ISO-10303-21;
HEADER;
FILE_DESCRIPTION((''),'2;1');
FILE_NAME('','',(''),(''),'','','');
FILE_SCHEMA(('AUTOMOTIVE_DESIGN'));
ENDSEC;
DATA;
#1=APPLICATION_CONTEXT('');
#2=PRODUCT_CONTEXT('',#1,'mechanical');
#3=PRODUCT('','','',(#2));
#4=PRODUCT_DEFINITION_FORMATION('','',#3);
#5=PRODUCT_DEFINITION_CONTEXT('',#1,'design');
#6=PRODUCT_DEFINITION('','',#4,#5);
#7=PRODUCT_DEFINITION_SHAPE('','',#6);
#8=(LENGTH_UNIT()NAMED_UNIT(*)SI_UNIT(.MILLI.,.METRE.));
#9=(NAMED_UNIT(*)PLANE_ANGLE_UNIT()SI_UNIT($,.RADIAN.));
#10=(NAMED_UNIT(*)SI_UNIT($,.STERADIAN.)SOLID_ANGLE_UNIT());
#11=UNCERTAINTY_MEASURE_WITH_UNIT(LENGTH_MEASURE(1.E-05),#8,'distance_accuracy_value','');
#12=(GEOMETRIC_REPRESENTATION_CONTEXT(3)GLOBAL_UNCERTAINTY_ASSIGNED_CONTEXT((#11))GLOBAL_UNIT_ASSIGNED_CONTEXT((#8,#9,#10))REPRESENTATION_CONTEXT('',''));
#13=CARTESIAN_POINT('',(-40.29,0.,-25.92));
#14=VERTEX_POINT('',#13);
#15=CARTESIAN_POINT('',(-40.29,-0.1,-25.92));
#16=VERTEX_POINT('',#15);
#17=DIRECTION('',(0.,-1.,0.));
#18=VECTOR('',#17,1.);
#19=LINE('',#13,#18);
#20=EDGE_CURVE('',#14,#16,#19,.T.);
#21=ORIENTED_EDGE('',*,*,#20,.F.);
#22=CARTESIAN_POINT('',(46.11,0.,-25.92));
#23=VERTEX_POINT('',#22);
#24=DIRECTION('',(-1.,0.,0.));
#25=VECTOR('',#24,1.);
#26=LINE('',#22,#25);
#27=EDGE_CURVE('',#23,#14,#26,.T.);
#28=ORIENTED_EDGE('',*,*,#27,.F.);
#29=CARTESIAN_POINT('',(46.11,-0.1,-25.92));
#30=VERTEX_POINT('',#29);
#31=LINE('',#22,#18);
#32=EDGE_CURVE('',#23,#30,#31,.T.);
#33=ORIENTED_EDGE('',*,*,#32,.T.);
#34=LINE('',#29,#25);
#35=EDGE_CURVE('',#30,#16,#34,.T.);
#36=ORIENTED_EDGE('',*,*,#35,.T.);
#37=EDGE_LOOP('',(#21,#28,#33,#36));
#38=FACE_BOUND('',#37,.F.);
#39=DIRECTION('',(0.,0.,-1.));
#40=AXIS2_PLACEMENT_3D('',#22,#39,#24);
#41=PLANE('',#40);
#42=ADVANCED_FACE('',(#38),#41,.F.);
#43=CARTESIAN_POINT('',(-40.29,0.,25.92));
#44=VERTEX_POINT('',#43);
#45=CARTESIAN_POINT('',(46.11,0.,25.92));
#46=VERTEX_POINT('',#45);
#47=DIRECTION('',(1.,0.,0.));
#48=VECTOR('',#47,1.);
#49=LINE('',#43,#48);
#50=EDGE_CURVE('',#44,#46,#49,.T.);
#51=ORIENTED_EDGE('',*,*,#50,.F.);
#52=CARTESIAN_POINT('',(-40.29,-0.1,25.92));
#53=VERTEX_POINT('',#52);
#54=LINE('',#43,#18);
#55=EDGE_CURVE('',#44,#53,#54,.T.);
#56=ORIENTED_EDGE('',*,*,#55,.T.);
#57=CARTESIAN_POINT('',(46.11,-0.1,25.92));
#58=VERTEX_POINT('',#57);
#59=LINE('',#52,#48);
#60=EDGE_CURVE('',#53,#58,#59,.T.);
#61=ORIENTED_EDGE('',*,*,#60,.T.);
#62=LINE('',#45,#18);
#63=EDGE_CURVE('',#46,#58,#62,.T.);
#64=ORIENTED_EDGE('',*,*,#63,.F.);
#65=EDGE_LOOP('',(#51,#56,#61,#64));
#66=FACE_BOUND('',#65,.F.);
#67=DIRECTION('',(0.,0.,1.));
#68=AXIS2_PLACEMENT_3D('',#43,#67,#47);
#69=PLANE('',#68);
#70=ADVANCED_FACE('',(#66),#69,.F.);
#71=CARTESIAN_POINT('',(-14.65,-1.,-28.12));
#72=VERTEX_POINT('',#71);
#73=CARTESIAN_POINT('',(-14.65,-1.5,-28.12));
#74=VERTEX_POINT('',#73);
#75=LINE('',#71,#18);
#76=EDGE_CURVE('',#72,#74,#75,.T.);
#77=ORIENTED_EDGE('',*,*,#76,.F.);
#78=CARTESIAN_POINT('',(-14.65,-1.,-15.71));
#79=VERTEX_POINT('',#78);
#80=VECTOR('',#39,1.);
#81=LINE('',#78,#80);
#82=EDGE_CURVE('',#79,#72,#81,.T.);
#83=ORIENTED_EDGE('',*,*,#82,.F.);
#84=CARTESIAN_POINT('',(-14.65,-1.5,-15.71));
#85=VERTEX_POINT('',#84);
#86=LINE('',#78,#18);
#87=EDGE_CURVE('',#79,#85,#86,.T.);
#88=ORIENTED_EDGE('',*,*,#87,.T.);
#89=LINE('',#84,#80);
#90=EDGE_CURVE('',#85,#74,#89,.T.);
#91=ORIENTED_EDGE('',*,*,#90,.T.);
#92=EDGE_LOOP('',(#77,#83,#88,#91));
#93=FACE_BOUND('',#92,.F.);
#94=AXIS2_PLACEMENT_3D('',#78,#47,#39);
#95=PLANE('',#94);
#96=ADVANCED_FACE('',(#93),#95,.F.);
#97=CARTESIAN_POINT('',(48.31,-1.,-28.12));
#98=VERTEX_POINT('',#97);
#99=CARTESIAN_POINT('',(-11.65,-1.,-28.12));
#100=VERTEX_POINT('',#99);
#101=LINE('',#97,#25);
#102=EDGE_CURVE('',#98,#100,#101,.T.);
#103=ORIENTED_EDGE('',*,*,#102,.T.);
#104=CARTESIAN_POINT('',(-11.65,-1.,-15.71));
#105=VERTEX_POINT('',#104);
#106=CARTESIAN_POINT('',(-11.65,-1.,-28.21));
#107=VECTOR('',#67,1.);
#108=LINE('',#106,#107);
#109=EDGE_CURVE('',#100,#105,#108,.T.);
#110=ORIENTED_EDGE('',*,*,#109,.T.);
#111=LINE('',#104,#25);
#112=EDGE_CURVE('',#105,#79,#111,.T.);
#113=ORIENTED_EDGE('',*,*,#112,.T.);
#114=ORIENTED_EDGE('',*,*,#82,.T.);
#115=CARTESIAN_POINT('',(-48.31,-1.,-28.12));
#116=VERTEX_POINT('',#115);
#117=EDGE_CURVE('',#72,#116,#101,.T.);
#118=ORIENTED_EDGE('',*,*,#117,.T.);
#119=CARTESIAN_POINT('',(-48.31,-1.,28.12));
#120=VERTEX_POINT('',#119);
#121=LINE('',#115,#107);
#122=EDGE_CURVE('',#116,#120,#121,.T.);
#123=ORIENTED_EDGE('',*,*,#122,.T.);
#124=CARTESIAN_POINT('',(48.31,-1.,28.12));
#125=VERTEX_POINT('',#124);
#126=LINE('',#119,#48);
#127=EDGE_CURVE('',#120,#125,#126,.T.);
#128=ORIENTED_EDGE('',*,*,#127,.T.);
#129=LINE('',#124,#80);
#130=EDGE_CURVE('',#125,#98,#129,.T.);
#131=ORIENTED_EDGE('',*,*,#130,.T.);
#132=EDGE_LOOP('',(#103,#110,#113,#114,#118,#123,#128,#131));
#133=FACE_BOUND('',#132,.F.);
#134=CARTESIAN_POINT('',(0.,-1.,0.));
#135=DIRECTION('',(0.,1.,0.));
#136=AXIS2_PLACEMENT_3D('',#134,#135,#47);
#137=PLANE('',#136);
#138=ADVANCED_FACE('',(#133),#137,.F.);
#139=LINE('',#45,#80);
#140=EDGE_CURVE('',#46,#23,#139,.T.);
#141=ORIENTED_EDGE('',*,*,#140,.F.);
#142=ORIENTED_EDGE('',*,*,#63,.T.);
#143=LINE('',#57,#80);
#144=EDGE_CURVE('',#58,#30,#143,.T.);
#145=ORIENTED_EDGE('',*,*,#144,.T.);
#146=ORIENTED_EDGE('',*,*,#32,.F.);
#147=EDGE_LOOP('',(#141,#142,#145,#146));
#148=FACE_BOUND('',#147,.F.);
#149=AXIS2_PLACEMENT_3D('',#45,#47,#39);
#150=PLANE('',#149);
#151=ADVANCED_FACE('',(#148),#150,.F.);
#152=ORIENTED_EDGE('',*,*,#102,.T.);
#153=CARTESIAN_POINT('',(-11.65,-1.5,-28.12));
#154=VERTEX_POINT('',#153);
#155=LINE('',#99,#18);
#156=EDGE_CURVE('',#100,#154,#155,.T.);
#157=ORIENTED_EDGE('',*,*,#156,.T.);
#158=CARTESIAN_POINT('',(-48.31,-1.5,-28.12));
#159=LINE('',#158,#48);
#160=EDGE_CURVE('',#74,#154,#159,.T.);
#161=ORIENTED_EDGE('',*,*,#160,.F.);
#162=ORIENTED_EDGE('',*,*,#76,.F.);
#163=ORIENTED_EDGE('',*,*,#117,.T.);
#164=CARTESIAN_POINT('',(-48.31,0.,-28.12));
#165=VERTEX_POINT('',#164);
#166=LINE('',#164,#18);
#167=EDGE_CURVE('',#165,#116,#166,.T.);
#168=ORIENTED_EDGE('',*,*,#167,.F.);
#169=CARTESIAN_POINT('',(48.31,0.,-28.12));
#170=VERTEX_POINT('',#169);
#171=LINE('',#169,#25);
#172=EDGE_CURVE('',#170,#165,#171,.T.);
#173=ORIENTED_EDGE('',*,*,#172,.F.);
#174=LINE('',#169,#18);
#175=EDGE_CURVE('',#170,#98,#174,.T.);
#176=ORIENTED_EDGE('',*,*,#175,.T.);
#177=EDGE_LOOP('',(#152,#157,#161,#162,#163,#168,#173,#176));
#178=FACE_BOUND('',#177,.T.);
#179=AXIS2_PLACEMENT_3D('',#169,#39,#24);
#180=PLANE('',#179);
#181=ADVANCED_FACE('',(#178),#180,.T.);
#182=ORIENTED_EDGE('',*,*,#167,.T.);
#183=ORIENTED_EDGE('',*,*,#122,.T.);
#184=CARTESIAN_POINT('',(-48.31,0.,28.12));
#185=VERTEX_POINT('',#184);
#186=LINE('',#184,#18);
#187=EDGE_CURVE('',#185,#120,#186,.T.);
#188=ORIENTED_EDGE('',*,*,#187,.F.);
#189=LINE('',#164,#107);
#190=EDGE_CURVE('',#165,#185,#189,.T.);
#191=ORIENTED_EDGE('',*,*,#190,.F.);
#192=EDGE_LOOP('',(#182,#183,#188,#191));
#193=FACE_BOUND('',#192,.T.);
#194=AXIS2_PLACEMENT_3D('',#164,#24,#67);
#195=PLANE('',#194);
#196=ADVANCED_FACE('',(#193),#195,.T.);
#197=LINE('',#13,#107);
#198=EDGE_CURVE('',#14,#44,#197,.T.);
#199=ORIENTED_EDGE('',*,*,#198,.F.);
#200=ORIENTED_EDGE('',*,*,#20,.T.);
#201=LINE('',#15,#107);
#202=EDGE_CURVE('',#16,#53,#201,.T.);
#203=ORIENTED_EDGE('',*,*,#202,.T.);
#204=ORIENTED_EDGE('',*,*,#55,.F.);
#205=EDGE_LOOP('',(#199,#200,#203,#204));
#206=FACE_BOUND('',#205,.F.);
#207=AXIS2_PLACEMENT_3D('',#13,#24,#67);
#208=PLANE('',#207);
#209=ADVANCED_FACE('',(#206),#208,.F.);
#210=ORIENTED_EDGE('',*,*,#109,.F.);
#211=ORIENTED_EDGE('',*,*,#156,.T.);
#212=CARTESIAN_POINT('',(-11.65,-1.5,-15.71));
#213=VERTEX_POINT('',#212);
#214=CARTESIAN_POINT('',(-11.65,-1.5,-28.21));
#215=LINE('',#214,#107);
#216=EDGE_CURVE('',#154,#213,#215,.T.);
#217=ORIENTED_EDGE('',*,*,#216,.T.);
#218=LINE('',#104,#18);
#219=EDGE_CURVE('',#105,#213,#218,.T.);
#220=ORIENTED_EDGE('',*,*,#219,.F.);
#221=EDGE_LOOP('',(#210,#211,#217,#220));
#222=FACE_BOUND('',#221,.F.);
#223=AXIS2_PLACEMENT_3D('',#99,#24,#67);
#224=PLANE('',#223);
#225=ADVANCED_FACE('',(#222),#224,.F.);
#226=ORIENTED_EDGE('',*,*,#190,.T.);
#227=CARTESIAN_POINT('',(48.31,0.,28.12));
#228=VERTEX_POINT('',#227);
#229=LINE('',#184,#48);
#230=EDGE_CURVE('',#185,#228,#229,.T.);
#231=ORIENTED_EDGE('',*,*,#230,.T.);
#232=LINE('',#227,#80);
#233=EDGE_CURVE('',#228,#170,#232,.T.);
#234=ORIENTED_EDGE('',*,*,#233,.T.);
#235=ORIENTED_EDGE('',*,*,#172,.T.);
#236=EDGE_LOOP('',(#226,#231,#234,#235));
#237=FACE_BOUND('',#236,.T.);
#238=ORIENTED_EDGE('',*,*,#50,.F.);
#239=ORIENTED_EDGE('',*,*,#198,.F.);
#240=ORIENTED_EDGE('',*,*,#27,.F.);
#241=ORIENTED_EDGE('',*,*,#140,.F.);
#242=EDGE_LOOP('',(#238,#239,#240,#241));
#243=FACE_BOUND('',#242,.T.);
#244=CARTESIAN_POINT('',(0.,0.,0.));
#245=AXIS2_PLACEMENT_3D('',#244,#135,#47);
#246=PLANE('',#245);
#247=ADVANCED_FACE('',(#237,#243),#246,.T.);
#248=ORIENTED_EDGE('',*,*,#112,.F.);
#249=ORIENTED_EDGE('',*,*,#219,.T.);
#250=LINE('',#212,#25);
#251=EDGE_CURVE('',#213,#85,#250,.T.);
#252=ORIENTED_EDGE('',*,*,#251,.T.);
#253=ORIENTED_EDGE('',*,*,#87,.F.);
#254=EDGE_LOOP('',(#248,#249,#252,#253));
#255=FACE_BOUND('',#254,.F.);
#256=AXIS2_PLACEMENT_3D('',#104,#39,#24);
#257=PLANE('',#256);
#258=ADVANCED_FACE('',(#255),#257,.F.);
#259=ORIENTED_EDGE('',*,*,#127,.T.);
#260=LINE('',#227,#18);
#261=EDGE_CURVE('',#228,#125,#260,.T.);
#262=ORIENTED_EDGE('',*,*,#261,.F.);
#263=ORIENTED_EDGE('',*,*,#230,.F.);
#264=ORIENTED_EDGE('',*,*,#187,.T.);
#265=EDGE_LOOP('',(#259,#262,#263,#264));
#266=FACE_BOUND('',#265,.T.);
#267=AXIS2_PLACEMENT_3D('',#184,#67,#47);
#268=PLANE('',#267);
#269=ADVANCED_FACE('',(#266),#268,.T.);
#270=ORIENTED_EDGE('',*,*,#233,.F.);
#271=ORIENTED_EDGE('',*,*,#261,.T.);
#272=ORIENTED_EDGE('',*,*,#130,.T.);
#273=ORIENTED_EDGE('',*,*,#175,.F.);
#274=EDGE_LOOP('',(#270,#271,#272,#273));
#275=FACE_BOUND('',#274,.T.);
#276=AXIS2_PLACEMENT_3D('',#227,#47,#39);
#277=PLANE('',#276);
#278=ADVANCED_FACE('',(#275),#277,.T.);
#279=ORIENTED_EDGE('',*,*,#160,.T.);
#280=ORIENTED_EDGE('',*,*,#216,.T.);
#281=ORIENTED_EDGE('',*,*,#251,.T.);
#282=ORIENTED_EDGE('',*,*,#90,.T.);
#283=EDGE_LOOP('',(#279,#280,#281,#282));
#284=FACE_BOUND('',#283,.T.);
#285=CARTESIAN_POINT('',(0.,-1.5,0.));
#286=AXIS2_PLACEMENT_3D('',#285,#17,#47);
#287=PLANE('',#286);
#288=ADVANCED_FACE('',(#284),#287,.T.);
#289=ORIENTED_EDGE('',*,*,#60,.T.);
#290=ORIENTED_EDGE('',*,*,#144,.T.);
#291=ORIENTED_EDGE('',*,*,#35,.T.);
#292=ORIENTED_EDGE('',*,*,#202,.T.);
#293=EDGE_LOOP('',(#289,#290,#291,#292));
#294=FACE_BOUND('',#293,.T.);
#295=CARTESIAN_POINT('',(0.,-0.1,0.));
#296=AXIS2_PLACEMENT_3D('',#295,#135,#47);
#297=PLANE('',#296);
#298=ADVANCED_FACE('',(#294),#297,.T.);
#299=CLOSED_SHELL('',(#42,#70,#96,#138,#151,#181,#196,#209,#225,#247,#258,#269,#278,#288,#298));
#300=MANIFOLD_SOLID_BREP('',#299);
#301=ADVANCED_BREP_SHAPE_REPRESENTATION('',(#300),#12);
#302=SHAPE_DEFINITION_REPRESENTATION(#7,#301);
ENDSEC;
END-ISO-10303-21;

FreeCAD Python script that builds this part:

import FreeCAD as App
import Part
import Sketcher
from FreeCAD import Vector
Q = App.Units.Quantity

doc = App.newDocument("Part")
body = doc.addObject("PartDesign::Body", "Body")

# Sketch on XZ plane
sketch1 = body.newObject("Sketcher::SketchObject", "Sketch")
sketch1.AttachmentSupport = (doc.getObject("XZ_Plane"), [""])
sketch1.MapMode = "FlatFace"
sketch1.addGeometry([
    Part.LineSegment(Vector(48, 28, 0), Vector(48, -28, 0)),
    Part.LineSegment(Vector(48, -28, 0), Vector(-48, -28, 0)),
    Part.LineSegment(Vector(-48, -28, 0), Vector(-48, 28, 0)),
    Part.LineSegment(Vector(-48, 28, 0), Vector(48, 28, 0)),
], False)
sketch1.addConstraint([
    Sketcher.Constraint("Coincident", 0, 2, 1, 1),
    Sketcher.Constraint("Coincident", 1, 2, 2, 1),
    Sketcher.Constraint("Coincident", 2, 2, 3, 1),
    Sketcher.Constraint("Coincident", 3, 2, 0, 1),
    Sketcher.Constraint("Vertical", 0),
    Sketcher.Constraint("Horizontal", 1),
    Sketcher.Constraint("Vertical", 2),
    Sketcher.Constraint("Horizontal", 3),
    Sketcher.Constraint("Symmetric", 0, 2, 2, 2, -1, 1),
    Sketcher.Constraint("DistanceX", 1, 2, 1, 1, Q("96.62 mm")),
    Sketcher.Constraint("DistanceY", 0, 2, 0, 1, Q("56.24 mm")),
])
pad1 = body.newObject("PartDesign::Pad", "Pad")
pad1.Profile = sketch1
pad1.Length = 1

# Sketch on XZ plane
sketch2 = body.newObject("Sketcher::SketchObject", "Sketch001")
sketch2.AttachmentSupport = (doc.getObject("XZ_Plane"), [""])
sketch2.MapMode = "FlatFace"
sketch2.addGeometry([
    Part.LineSegment(Vector(46, 26, 0), Vector(46, -26, 0)),
    Part.LineSegment(Vector(46, -26, 0), Vector(-40, -26, 0)),
    Part.LineSegment(Vector(-40, -26, 0), Vector(-40, 26, 0)),
    Part.LineSegment(Vector(-40, 26, 0), Vector(46, 26, 0)),
], False)
sketch2.addConstraint([
    Sketcher.Constraint("Coincident", 0, 2, 1, 1),
    Sketcher.Constraint("Coincident", 1, 2, 2, 1),
    Sketcher.Constraint("Coincident", 2, 2, 3, 1),
    Sketcher.Constraint("Coincident", 3, 2, 0, 1),
    Sketcher.Constraint("Vertical", 0),
    Sketcher.Constraint("Horizontal", 1),
    Sketcher.Constraint("Vertical", 2),
    Sketcher.Constraint("Horizontal", 3),
    Sketcher.Constraint("DistanceX", 1, 2, 1, 1, Q("86.4 mm")),
    Sketcher.Constraint("DistanceY", 0, 2, 0, 1, Q("51.84 mm")),
    Sketcher.Constraint("DistanceX", -1, 1, 0, 2, Q("46.11 mm")),
    Sketcher.Constraint("DistanceY", 0, 2, -1, 1, Q("25.92 mm")),
])
pocket1 = body.newObject("PartDesign::Pocket", "Pocket")
pocket1.Profile = sketch2
pocket1.Length = 0.1
pocket1.Reversed = True

# Sketch on XZ plane
sketch3 = body.newObject("Sketcher::SketchObject", "Sketch002")
sketch3.AttachmentSupport = (doc.getObject("XZ_Plane"), [""])
sketch3.MapMode = "FlatFace"
sketch3.AttachmentOffset = App.Placement(Vector(0, 0, 1), App.Rotation())
sketch3.addGeometry([
    Part.LineSegment(Vector(-14.7, -28.1, 0), Vector(-11.7, -28.1, 0)),
    Part.LineSegment(Vector(-11.7, -28.1, 0), Vector(-11.7, -15.7, 0)),
    Part.LineSegment(Vector(-11.7, -15.7, 0), Vector(-14.7, -15.7, 0)),
    Part.LineSegment(Vector(-14.7, -15.7, 0), Vector(-14.7, -28.1, 0)),
], False)
sketch3.addConstraint([
    Sketcher.Constraint("Coincident", 0, 2, 1, 1),
    Sketcher.Constraint("Coincident", 1, 2, 2, 1),
    Sketcher.Constraint("Coincident", 2, 2, 3, 1),
    Sketcher.Constraint("Coincident", 3, 2, 0, 1),
    Sketcher.Constraint("Horizontal", 0),
    Sketcher.Constraint("Vertical", 1),
    Sketcher.Constraint("Horizontal", 2),
    Sketcher.Constraint("Vertical", 3),
    Sketcher.Constraint("DistanceX", 0, 1, 0, 2, Q("3 mm")),
    Sketcher.Constraint("DistanceY", 1, 1, 1, 2, Q("12.41 mm")),
    Sketcher.Constraint("DistanceX", 0, 2, -1, 1, Q("11.65 mm")),
    Sketcher.Constraint("DistanceY", 0, 2, -1, 1, Q("28.12 mm")),
])
pad2 = body.newObject("PartDesign::Pad", "Pad001")
pad2.Profile = sketch3
pad2.Length = 0.5

doc.recompute()
